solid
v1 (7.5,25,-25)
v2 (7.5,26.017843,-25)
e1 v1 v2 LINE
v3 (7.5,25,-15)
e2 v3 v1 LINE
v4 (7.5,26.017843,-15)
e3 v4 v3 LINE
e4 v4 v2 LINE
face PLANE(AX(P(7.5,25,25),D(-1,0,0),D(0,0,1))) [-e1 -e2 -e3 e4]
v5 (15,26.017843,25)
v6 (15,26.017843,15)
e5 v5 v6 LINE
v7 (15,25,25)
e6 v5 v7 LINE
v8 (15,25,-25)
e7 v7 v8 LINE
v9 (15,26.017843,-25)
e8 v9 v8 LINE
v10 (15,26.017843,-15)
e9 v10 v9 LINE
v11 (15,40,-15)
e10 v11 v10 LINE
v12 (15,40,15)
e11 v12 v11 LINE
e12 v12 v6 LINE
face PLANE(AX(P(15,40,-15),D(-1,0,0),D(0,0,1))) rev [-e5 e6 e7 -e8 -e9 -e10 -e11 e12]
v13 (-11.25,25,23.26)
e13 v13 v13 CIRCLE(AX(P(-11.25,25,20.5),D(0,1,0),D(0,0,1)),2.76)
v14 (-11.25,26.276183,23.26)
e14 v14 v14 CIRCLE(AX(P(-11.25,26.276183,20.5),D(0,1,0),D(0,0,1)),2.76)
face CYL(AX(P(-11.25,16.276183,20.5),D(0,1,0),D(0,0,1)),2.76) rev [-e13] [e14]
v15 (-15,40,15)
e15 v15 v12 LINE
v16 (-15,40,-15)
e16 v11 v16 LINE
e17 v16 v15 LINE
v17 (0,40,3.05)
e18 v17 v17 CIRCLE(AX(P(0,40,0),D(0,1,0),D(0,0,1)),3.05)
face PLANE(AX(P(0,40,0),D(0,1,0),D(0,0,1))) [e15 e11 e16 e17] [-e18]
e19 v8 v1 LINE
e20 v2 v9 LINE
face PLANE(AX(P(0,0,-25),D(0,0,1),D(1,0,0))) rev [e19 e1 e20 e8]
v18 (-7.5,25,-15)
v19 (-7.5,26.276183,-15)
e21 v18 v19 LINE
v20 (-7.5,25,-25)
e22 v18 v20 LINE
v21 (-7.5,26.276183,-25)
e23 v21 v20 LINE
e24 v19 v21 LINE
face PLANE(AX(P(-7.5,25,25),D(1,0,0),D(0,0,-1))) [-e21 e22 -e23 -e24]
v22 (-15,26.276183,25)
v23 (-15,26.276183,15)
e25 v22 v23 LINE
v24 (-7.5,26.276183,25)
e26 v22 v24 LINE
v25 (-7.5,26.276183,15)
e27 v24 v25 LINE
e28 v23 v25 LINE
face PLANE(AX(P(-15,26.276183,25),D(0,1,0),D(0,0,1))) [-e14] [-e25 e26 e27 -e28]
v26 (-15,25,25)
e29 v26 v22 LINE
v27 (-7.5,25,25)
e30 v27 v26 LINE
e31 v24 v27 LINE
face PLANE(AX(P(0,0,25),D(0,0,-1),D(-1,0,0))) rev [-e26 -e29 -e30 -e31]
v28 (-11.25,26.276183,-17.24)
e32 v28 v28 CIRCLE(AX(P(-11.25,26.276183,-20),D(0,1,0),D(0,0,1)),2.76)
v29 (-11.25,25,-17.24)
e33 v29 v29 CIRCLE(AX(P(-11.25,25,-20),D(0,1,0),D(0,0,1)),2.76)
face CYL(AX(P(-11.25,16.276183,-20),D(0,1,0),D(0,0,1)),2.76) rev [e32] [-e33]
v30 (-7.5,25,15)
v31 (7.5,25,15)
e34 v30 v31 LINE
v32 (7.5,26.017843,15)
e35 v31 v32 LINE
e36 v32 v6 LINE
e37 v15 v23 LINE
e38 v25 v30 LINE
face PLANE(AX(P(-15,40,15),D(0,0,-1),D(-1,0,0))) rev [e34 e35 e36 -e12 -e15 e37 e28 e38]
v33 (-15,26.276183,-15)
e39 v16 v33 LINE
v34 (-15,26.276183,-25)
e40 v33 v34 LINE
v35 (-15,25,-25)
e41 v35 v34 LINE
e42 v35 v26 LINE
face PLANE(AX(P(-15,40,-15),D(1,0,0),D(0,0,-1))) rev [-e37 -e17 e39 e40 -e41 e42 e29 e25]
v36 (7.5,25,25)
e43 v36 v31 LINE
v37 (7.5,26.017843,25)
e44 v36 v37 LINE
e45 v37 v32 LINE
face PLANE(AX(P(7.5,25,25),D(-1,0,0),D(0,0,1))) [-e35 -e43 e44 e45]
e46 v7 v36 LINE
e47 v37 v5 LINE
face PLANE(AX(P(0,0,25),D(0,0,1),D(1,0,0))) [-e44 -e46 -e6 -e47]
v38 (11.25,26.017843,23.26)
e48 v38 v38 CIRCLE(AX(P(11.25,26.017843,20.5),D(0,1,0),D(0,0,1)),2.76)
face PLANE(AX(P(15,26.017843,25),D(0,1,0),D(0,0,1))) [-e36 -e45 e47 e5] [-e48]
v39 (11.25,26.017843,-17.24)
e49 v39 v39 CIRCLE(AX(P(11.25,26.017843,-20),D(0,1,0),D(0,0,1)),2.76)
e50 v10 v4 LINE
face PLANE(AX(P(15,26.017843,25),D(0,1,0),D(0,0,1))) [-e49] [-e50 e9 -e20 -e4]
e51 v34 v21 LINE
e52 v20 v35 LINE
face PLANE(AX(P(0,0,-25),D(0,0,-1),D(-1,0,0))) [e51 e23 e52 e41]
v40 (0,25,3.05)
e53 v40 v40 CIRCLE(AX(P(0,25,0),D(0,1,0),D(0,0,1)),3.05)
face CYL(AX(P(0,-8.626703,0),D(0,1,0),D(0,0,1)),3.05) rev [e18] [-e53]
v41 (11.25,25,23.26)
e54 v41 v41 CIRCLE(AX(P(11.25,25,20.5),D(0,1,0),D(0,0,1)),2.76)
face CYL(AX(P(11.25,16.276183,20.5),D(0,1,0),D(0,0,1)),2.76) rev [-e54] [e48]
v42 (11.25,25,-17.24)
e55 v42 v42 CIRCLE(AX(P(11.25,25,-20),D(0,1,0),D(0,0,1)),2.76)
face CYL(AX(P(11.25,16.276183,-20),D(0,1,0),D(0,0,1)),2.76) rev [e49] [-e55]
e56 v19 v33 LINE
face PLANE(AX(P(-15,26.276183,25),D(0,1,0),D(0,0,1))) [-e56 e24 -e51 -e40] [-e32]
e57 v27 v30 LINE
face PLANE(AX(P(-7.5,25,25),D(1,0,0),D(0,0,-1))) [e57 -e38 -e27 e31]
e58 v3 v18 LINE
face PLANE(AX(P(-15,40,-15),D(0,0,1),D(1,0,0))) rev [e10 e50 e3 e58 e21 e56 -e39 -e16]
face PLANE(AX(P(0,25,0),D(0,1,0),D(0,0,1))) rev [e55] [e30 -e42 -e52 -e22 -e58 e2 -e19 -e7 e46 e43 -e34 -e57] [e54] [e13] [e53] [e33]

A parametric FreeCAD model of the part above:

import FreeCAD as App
import Part
import Sketcher

V = App.Vector

doc = App.newDocument("Part")
body = doc.addObject("PartDesign::Body", "Body")

# Sketch on XZ plane
sketch1 = doc.addObject("Sketcher::SketchObject", "Sketch")
body.addObject(sketch1)
sketch1.AttachmentSupport = (doc.XZ_Plane, [""])
sketch1.MapMode = "FlatFace"
sketch1.addGeometry(Part.LineSegment(V(-15, -15, 0), V(-15, 15, 0)), False)
sketch1.addGeometry(Part.LineSegment(V(-15, 15, 0), V(15, 15, 0)), False)
sketch1.addGeometry(Part.LineSegment(V(15, 15, 0), V(15, -15, 0)), False)
sketch1.addGeometry(Part.LineSegment(V(15, -15, 0), V(-15, -15, 0)), False)
sketch1.addConstraint(Sketcher.Constraint("Coincident", 0, 2, 1, 1))
sketch1.addConstraint(Sketcher.Constraint("Coincident", 1, 2, 2, 1))
sketch1.addConstraint(Sketcher.Constraint("Coincident", 2, 2, 3, 1))
sketch1.addConstraint(Sketcher.Constraint("Coincident", 3, 2, 0, 1))
sketch1.addConstraint(Sketcher.Constraint("Vertical", 0))
sketch1.addConstraint(Sketcher.Constraint("Horizontal", 1))
sketch1.addConstraint(Sketcher.Constraint("Vertical", 2))
sketch1.addConstraint(Sketcher.Constraint("Horizontal", 3))
sketch1.addConstraint(Sketcher.Constraint("Symmetric", 0, 2, 2, 2, -1, 1))
sketch1.addConstraint(Sketcher.Constraint("Equal", 3, 0))
sketch1.addConstraint(Sketcher.Constraint("DistanceX", 1, 1, 1, 2, 30.0))
pad1 = doc.addObject("PartDesign::Pad", "Pad")
body.addObject(pad1)
pad1.Profile = sketch1
pad1.Length = 10
pad1.Reversed = True
body2 = doc.addObject("PartDesign::Body", "Body001")

# Sketch on XZ plane
sketch2 = doc.addObject("Sketcher::SketchObject", "Sketch001")
body2.addObject(sketch2)
sketch2.AttachmentSupport = (doc.getObject("XZ_Plane001"), [""])
sketch2.MapMode = "FlatFace"
sketch2.AttachmentOffset = App.Placement(V(0, 0, -10), App.Rotation())
sketch2.addGeometry(Part.LineSegment(V(-15, -15, 0), V(-15, 15, 0)), False)
sketch2.addGeometry(Part.LineSegment(V(-15, 15, 0), V(15, 15, 0)), False)
sketch2.addGeometry(Part.LineSegment(V(15, 15, 0), V(15, -15, 0)), False)
sketch2.addGeometry(Part.LineSegment(V(15, -15, 0), V(-15, -15, 0)), False)
sketch2.addGeometry(Part.LineSegment(V(12, 12, 0), V(-12, 12, 0)), False)
sketch2.addGeometry(Part.LineSegment(V(-12, 12, 0), V(-12, -12, 0)), False)
sketch2.addGeometry(Part.LineSegment(V(-12, -12, 0), V(12, -12, 0)), False)
sketch2.addGeometry(Part.LineSegment(V(12, -12, 0), V(12, 12, 0)), False)
sketch2.addConstraint(Sketcher.Constraint("Coincident", 0, 2, 1, 1))
sketch2.addConstraint(Sketcher.Constraint("Coincident", 1, 2, 2, 1))
sketch2.addConstraint(Sketcher.Constraint("Coincident", 2, 2, 3, 1))
sketch2.addConstraint(Sketcher.Constraint("Coincident", 3, 2, 0, 1))
sketch2.addConstraint(Sketcher.Constraint("Coincident", 4, 2, 5, 1))
sketch2.addConstraint(Sketcher.Constraint("Coincident", 5, 2, 6, 1))
sketch2.addConstraint(Sketcher.Constraint("Coincident", 6, 2, 7, 1))
sketch2.addConstraint(Sketcher.Constraint("Coincident", 7, 2, 4, 1))
sketch2.addConstraint(Sketcher.Constraint("Vertical", 0))
sketch2.addConstraint(Sketcher.Constraint("Horizontal", 1))
sketch2.addConstraint(Sketcher.Constraint("Vertical", 2))
sketch2.addConstraint(Sketcher.Constraint("Horizontal", 3))
sketch2.addConstraint(Sketcher.Constraint("Horizontal", 4))
sketch2.addConstraint(Sketcher.Constraint("Vertical", 5))
sketch2.addConstraint(Sketcher.Constraint("Horizontal", 6))
sketch2.addConstraint(Sketcher.Constraint("Vertical", 7))
sketch2.addConstraint(Sketcher.Constraint("Symmetric", 0, 2, 2, 2, -1, 1))
sketch2.addConstraint(Sketcher.Constraint("Symmetric", 4, 2, 6, 2, -1, 1))
sketch2.addConstraint(Sketcher.Constraint("Equal", 3, 0))
sketch2.addConstraint(Sketcher.Constraint("Equal", 6, 5))
sketch2.addConstraint(Sketcher.Constraint("DistanceX", 1, 1, 1, 2, 30.0))
sketch2.addConstraint(Sketcher.Constraint("DistanceX", 4, 2, 4, 1, 25.0))
pad2 = doc.addObject("PartDesign::Pad", "Pad001")
body2.addObject(pad2)
pad2.Profile = sketch2
pad2.Length = 15
pad2.Reversed = True
body3 = doc.addObject("PartDesign::Body", "Body002")

# Sketch on XZ plane
sketch3 = doc.addObject("Sketcher::SketchObject", "Sketch002")
body3.addObject(sketch3)
sketch3.AttachmentSupport = (doc.getObject("XZ_Plane002"), [""])
sketch3.MapMode = "FlatFace"
sketch3.AttachmentOffset = App.Placement(V(0, 0, -25), App.Rotation())
sketch3.addGeometry(Part.LineSegment(V(-15, -15, 0), V(-15, 15, 0)), False)
sketch3.addGeometry(Part.LineSegment(V(-15, 15, 0), V(15, 15, 0)), False)
sketch3.addGeometry(Part.LineSegment(V(15, 15, 0), V(15, -15, 0)), False)
sketch3.addGeometry(Part.LineSegment(V(15, -15, 0), V(-15, -15, 0)), False)
sketch3.addConstraint(Sketcher.Constraint("Coincident", 0, 2, 1, 1))
sketch3.addConstraint(Sketcher.Constraint("Coincident", 1, 2, 2, 1))
sketch3.addConstraint(Sketcher.Constraint("Coincident", 2, 2, 3, 1))
sketch3.addConstraint(Sketcher.Constraint("Coincident", 3, 2, 0, 1))
sketch3.addConstraint(Sketcher.Constraint("Vertical", 0))
sketch3.addConstraint(Sketcher.Constraint("Horizontal", 1))
sketch3.addConstraint(Sketcher.Constraint("Vertical", 2))
sketch3.addConstraint(Sketcher.Constraint("Horizontal", 3))
sketch3.addConstraint(Sketcher.Constraint("Symmetric", 0, 2, 2, 2, -1, 1))
sketch3.addConstraint(Sketcher.Constraint("Equal", 3, 0))
sketch3.addConstraint(Sketcher.Constraint("DistanceX", 1, 1, 1, 2, 30.0))
pad3 = doc.addObject("PartDesign::Pad", "Pad002")
body3.addObject(pad3)
pad3.Profile = sketch3
pad3.Length = 15
pad3.Reversed = True
body4 = doc.addObject("PartDesign::Body", "Body003")

# Sketch on XZ plane
sketch4 = doc.addObject("Sketcher::SketchObject", "Sketch003")
body4.addObject(sketch4)
sketch4.AttachmentSupport = (doc.getObject("XZ_Plane003"), [""])
sketch4.MapMode = "FlatFace"
sketch4.addGeometry(Part.Circle(V(0, 0, 0), V(0, 0, 1), 3), False)
sketch4.addConstraint(Sketcher.Constraint("Coincident", 0, 3, -1, 1))
sketch4.addConstraint(Sketcher.Constraint("Diameter", 0, 6.1))
pad4 = doc.addObject("PartDesign::Pad", "Pad003")
body4.addObject(pad4)
pad4.Profile = sketch4
pad4.Length = 40
pad4.Reversed = True
doc.recompute()

body5 = doc.addObject("PartDesign::Body", "Body004")
body5.BaseFeature = body4
boolean = doc.addObject("PartDesign::Boolean", "Boolean")
body.addObject(boolean)
boolean.Type = "Cut"
boolean.addObjects([body5])
doc.recompute()

boolean2 = doc.addObject("PartDesign::Boolean", "Boolean001")
body3.addObject(boolean2)
boolean2.Type = "Cut"
boolean2.addObjects([body4])

# Sketch on XY plane
sketch5 = doc.addObject("Sketcher::SketchObject", "Sketch004")
body3.addObject(sketch5)
sketch5.AttachmentSupport = (doc.getObject("XY_Plane002"), [""])
sketch5.MapMode = "FlatFace"
sketch5.AttachmentOffset = App.Placement(V(0, 0, -15), App.Rotation())
sketch5.addGeometry(Part.LineSegment(V(15, 26, 0), V(15, 25, 0)), False)
sketch5.addGeometry(Part.LineSegment(V(15, 25, 0), V(7.5, 25, 0)), False)
sketch5.addGeometry(Part.LineSegment(V(7.5, 25, 0), V(7.5, 26, 0)), False)
sketch5.addGeometry(Part.LineSegment(V(7.5, 26, 0), V(15, 26, 0)), False)
sketch5.addGeometry(Part.LineSegment(V(-7.5, 26.3, 0), V(-7.5, 25, 0)), False)
sketch5.addGeometry(Part.LineSegment(V(-7.5, 25, 0), V(-15, 25, 0)), False)
sketch5.addGeometry(Part.LineSegment(V(-15, 25, 0), V(-15, 26.3, 0)), False)
sketch5.addGeometry(Part.LineSegment(V(-15, 26.3, 0), V(-7.5, 26.3, 0)), False)
sketch5.addConstraint(Sketcher.Constraint("Coincident", 0, 2, 1, 1))
sketch5.addConstraint(Sketcher.Constraint("Coincident", 1, 2, 2, 1))
sketch5.addConstraint(Sketcher.Constraint("Coincident", 2, 2, 3, 1))
sketch5.addConstraint(Sketcher.Constraint("Coincident", 3, 2, 0, 1))
sketch5.addConstraint(Sketcher.Constraint("Coincident", 4, 2, 5, 1))
sketch5.addConstraint(Sketcher.Constraint("Coincident", 5, 2, 6, 1))
sketch5.addConstraint(Sketcher.Constraint("Coincident", 6, 2, 7, 1))
sketch5.addConstraint(Sketcher.Constraint("Coincident", 7, 2, 4, 1))
sketch5.addConstraint(Sketcher.Constraint("Vertical", 0))
sketch5.addConstraint(Sketcher.Constraint("Horizontal", 1))
sketch5.addConstraint(Sketcher.Constraint("Vertical", 2))
sketch5.addConstraint(Sketcher.Constraint("Horizontal", 3))
sketch5.addConstraint(Sketcher.Constraint("Vertical", 4))
sketch5.addConstraint(Sketcher.Constraint("Horizontal", 5))
sketch5.addConstraint(Sketcher.Constraint("Vertical", 6))
sketch5.addConstraint(Sketcher.Constraint("Horizontal", 7))
sketch5.addConstraint(Sketcher.Constraint("Symmetric", 1, 2, 4, 2, -2))
sketch5.addConstraint(Sketcher.Constraint("Equal", 3, 5))
sketch5.addConstraint(Sketcher.Constraint("DistanceX", 1, 2, 1, 1, 7.5))
sketch5.addConstraint(Sketcher.Constraint("DistanceX", -1, 1, 0, 2, 15.0))
sketch5.addConstraint(Sketcher.Constraint("DistanceY", -1, 1, 0, 2, 25.0))
sketch5.addConstraint(Sketcher.Constraint("DistanceY", 0, 2, 0, 1, 1.017843))
sketch5.addConstraint(Sketcher.Constraint("DistanceY", 4, 2, 4, 1, 1.276183))
pad5 = doc.addObject("PartDesign::Pad", "Pad004")
body3.addObject(pad5)
pad5.Profile = sketch5
pad5.Type = "TwoLengths"
pad5.Length = 10
pad5.Length2 = 40
pad5.Reversed = True

# Sketch on XZ plane
sketch6 = doc.addObject("Sketcher::SketchObject", "Sketch005")
body3.addObject(sketch6)
sketch6.AttachmentSupport = (doc.getObject("XZ_Plane002"), [""])
sketch6.MapMode = "FlatFace"
sketch6.AttachmentOffset = App.Placement(V(0, 0, -26.276183), App.Rotation())
sketch6.addGeometry(Part.Circle(V(-11.2, -20, 0), V(0, 0, 1), 2.8), False)
sketch6.addGeometry(Part.Circle(V(11.2, -20, 0), V(0, 0, 1), 2.8), False)
sketch6.addGeometry(Part.Circle(V(11.2, 20.5, 0), V(0, 0, 1), 2.8), False)
sketch6.addGeometry(Part.Circle(V(-11.2, 20.5, 0), V(0, 0, 1), 2.8), False)
sketch6.addConstraint(Sketcher.Constraint("Equal", 0, 1))
sketch6.addConstraint(Sketcher.Constraint("Equal", 1, 2))
sketch6.addConstraint(Sketcher.Constraint("Equal", 2, 3))
sketch6.addConstraint(Sketcher.Constraint("Symmetric", 0, 3, 1, 3, -2))
sketch6.addConstraint(Sketcher.Constraint("Symmetric", 2, 3, 3, 3, -2))
sketch6.addConstraint(Sketcher.Constraint("Vertical", 1, 3, 2, 3))
sketch6.addConstraint(Sketcher.Constraint("Diameter", 0, 5.52))
sketch6.addConstraint(Sketcher.Constraint("DistanceY", 0, 3, -1, 1, 20.0))
sketch6.addConstraint(Sketcher.Constraint("DistanceY", -1, 1, 2, 3, 20.5))
sketch6.addConstraint(Sketcher.Constraint("DistanceX", 0, 3, 1, 3, 22.5))
pocket1 = doc.addObject("PartDesign::Pocket", "Pocket")
body3.addObject(pocket1)
pocket1.Profile = sketch6
pocket1.Length = 10
pocket1.Reversed = True
body.Visibility = False
body2.Visibility = False

doc.recompute()
